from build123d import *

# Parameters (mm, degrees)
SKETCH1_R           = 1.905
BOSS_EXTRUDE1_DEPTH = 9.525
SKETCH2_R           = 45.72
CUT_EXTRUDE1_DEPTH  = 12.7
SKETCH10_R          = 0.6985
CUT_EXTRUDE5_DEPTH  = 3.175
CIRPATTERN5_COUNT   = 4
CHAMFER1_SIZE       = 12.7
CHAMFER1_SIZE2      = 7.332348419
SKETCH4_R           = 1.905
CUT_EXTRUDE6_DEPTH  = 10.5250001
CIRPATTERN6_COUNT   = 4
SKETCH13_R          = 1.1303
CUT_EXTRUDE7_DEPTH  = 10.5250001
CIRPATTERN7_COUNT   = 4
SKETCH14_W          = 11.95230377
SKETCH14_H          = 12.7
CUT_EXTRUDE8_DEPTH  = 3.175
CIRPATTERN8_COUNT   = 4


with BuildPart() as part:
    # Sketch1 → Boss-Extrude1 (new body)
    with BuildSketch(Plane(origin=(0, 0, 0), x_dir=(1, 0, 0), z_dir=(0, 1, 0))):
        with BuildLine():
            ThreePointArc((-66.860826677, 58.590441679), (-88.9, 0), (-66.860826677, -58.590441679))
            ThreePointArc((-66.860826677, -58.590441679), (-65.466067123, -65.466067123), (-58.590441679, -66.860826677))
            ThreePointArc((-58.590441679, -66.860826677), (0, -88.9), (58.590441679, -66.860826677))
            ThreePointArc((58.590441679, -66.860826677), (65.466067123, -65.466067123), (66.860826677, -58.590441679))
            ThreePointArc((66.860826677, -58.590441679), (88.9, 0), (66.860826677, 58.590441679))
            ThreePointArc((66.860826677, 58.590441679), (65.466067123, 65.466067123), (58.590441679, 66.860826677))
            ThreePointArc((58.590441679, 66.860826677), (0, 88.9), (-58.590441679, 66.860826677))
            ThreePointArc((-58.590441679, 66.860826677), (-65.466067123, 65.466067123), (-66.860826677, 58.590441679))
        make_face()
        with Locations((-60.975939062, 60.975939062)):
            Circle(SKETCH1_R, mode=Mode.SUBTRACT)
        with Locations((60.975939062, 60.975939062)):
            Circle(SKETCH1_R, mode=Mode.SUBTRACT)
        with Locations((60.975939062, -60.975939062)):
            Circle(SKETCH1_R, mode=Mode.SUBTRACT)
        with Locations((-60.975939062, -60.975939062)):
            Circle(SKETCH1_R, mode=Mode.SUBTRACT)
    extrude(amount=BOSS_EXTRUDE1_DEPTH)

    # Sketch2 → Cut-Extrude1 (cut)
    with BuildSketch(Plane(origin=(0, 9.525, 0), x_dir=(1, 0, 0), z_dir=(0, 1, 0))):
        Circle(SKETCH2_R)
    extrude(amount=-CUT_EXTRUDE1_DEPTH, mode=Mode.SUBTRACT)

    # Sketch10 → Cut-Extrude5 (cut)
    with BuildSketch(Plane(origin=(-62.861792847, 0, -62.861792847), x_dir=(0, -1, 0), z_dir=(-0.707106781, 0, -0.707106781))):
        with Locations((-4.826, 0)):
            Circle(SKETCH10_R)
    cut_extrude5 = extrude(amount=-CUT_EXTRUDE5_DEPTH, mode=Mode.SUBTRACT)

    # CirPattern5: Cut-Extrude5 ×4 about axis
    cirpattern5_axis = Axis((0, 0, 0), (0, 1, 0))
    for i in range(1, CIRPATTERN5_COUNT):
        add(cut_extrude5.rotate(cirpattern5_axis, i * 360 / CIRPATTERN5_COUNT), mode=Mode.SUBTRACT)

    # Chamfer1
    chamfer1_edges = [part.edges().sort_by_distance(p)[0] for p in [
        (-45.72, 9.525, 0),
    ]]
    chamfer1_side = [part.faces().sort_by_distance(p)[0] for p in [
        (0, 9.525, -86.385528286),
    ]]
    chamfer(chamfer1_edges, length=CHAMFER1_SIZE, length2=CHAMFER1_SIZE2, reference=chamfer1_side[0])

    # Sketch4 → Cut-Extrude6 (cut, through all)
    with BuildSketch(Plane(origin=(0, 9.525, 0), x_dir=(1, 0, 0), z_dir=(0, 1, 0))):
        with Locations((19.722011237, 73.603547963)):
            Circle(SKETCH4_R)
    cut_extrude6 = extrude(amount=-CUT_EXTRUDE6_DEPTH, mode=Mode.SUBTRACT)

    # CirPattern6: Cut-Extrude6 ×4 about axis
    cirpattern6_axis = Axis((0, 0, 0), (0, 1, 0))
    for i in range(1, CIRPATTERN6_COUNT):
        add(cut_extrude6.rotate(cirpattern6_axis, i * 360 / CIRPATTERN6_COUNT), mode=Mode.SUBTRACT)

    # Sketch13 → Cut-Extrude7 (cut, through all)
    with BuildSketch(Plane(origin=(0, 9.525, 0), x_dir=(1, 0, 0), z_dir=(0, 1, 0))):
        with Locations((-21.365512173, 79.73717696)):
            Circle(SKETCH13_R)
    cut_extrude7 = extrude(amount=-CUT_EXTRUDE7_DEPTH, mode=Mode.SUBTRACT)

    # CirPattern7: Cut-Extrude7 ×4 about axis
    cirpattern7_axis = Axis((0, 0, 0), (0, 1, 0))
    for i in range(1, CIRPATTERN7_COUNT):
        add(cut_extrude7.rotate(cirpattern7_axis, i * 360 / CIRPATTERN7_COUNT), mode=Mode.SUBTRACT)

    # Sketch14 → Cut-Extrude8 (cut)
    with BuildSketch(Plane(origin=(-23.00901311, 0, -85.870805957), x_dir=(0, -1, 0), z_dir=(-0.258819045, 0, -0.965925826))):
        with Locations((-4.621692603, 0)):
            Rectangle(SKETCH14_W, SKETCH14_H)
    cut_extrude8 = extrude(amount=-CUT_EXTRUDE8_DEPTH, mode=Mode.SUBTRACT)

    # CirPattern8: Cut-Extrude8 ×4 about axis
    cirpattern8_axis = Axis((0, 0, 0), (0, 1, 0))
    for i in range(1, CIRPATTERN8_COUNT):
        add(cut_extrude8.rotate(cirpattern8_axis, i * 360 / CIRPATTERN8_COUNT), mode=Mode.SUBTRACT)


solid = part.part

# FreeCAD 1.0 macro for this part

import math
import FreeCAD as App
import Part
import Sketcher

V = App.Vector
Q = App.Units.Quantity


def edges_at(feature, points):
    """Names of the edges that pass closest to the given points."""
    edges = feature.Shape.Edges
    near = lambda p: min(range(len(edges)), key=lambda i: edges[i].distToShape(Part.Vertex(*p))[0])
    return sorted({f"Edge{near(p) + 1}" for p in points})

doc = App.newDocument("Part")
body = doc.addObject("PartDesign::Body", "Body")

# Sketch on XZ plane
sketch1 = body.newObject("Sketcher::SketchObject", "Sketch")
sketch1.AttachmentSupport = (doc.getObject("XZ_Plane"), [""])
sketch1.MapMode = "FlatFace"
sketch1.addGeometry(Part.ArcOfCircle(Part.Circle(V(0, 0, 0), V(0, 0, 1), 88.9), math.radians(139), math.radians(221)), False)
sketch1.addGeometry(Part.ArcOfCircle(Part.Circle(V(-61, 61, 0), V(0, 0, 1), 6.3), math.radians(68), math.radians(202)), False)
sketch1.addGeometry(Part.ArcOfCircle(Part.Circle(V(0, 0, 0), V(0, 0, 1), 88.9), math.radians(49), math.radians(131)), False)
sketch1.addGeometry(Part.ArcOfCircle(Part.Circle(V(61, 61, 0), V(0, 0, 1), 6.3), math.radians(-22), math.radians(112)), False)
sketch1.addGeometry(Part.ArcOfCircle(Part.Circle(V(0, 0, 0), V(0, 0, 1), 88.9), math.radians(-41), math.radians(41)), False)
sketch1.addGeometry(Part.ArcOfCircle(Part.Circle(V(61, -61, 0), V(0, 0, 1), 6.3), math.radians(-112), math.radians(22)), False)
sketch1.addGeometry(Part.ArcOfCircle(Part.Circle(V(0, 0, 0), V(0, 0, 1), 88.9), math.radians(-131), math.radians(-49)), False)
sketch1.addGeometry(Part.ArcOfCircle(Part.Circle(V(-61, -61, 0), V(0, 0, 1), 6.3), math.radians(158), math.radians(292)), False)
sketch1.addGeometry(Part.Circle(V(-61, 61, 0), V(0, 0, 1), 1.9), False)
sketch1.addGeometry(Part.Circle(V(61, 61, 0), V(0, 0, 1), 1.9), False)
sketch1.addGeometry(Part.Circle(V(-61, -61, 0), V(0, 0, 1), 1.9), False)
sketch1.addGeometry(Part.Circle(V(61, -61, 0), V(0, 0, 1), 1.9), False)
sketch1.addConstraint(Sketcher.Constraint("Coincident", 0, 1, 1, 2))
sketch1.addConstraint(Sketcher.Constraint("Coincident", 1, 1, 2, 2))
sketch1.addConstraint(Sketcher.Constraint("Coincident", 2, 1, 3, 2))
sketch1.addConstraint(Sketcher.Constraint("Coincident", 3, 1, 4, 2))
sketch1.addConstraint(Sketcher.Constraint("Coincident", 4, 1, 5, 2))
sketch1.addConstraint(Sketcher.Constraint("Coincident", 5, 1, 6, 2))
sketch1.addConstraint(Sketcher.Constraint("Coincident", 6, 1, 7, 2))
sketch1.addConstraint(Sketcher.Constraint("Coincident", 7, 1, 0, 2))
sketch1.addConstraint(Sketcher.Constraint("Coincident", 0, 3, -1, 1))
sketch1.addConstraint(Sketcher.Constraint("Coincident", 2, 3, -1, 1))
sketch1.addConstraint(Sketcher.Constraint("Coincident", 4, 3, -1, 1))
sketch1.addConstraint(Sketcher.Constraint("Coincident", 6, 3, -1, 1))
sketch1.addConstraint(Sketcher.Constraint("Coincident", 8, 3, 1, 3))
sketch1.addConstraint(Sketcher.Constraint("Coincident", 9, 3, 3, 3))
sketch1.addConstraint(Sketcher.Constraint("Coincident", 10, 3, 7, 3))
sketch1.addConstraint(Sketcher.Constraint("Coincident", 11, 3, 5, 3))
sketch1.addConstraint(Sketcher.Constraint("Equal", 0, 2))
sketch1.addConstraint(Sketcher.Constraint("Equal", 1, 3))
sketch1.addConstraint(Sketcher.Constraint("Equal", 2, 4))
sketch1.addConstraint(Sketcher.Constraint("Equal", 3, 5))
sketch1.addConstraint(Sketcher.Constraint("Equal", 4, 6))
sketch1.addConstraint(Sketcher.Constraint("Equal", 5, 7))
sketch1.addConstraint(Sketcher.Constraint("Equal", 8, 9))
sketch1.addConstraint(Sketcher.Constraint("Equal", 9, 10))
sketch1.addConstraint(Sketcher.Constraint("Equal", 10, 11))
sketch1.addConstraint(Sketcher.Constraint("Symmetric", 1, 3, 5, 3, -1, 1))
sketch1.addConstraint(Sketcher.Constraint("Symmetric", 3, 3, 7, 3, -1, 1))
sketch1.addConstraint(Sketcher.Constraint("Symmetric", 1, 3, 3, 3, -2))
sketch1.addConstraint(Sketcher.Constraint("Radius", 0, Q("3.5 in")))
sketch1.addConstraint(Sketcher.Constraint("Diameter", 8, Q("0.15 in")))
sketch1.addConstraint(Sketcher.Constraint("Radius", 1, Q("0.25 in")))
sketch1.addConstraint(Sketcher.Constraint("DistanceX", 1, 3, -1, 1, Q("60.975939 mm")))
sketch1.addConstraint(Sketcher.Constraint("DistanceY", -1, 1, 1, 3, Q("60.975939 mm")))
pad1 = body.newObject("PartDesign::Pad", "Pad")
pad1.Profile = sketch1
pad1.Length = Q("0.375 in")
pad1.Reversed = True

# Sketch on XZ plane
sketch2 = body.newObject("Sketcher::SketchObject", "Sketch001")
sketch2.AttachmentSupport = (doc.getObject("XZ_Plane"), [""])
sketch2.MapMode = "FlatFace"
sketch2.AttachmentOffset = App.Placement(V(0, 0, -0.375 * 25.4), App.Rotation())
sketch2.addGeometry(Part.Circle(V(0, 0, 0), V(0, 0, 1), 46), False)
sketch2.addConstraint(Sketcher.Constraint("Coincident", 0, 3, -1, 1))
sketch2.addConstraint(Sketcher.Constraint("Diameter", 0, Q("3.6 in")))
pocket1 = body.newObject("PartDesign::Pocket", "Pocket")
pocket1.Profile = sketch2
pocket1.Length = Q("0.5 in")
pocket1.Reversed = True

# Sketch on an angled plane
sketch3 = body.newObject("Sketcher::SketchObject", "Sketch002")
sketch3.Placement = App.Placement(V(-62.861793, 0, -62.861793), App.Rotation(V(0, -1, 0), V(-0.707106781, 0, 0.707106781), V(-0.707106781, 0, -0.707106781), "ZXY"))
sketch3.addGeometry(Part.Circle(V(-4.8, 0, 0), V(0, 0, 1), 0.7), False)
sketch3.addConstraint(Sketcher.Constraint("PointOnObject", 0, 3, -1))
sketch3.addConstraint(Sketcher.Constraint("Diameter", 0, Q("0.055 in")))
sketch3.addConstraint(Sketcher.Constraint("DistanceX", 0, 3, -1, 1, Q("0.19 in")))
pocket2 = body.newObject("PartDesign::Pocket", "Pocket001")
pocket2.Profile = sketch3
pocket2.Length = Q("0.125 in")
doc.recompute()

polarpattern = body.newObject("PartDesign::PolarPattern", "PolarPattern")
polarpattern.Originals = [pocket2]
polarpattern.Axis = (doc.getObject("Y_Axis"), [""])
polarpattern.Angle = 360
polarpattern.Occurrences = 4
body.Tip = polarpattern
doc.recompute()

chamfer = body.newObject("PartDesign::Chamfer", "Chamfer")
chamfer.Base = (polarpattern, edges_at(polarpattern, [(-45.72, 9.525, 0)]))
chamfer.ChamferType = "Two distances"
chamfer.Size = Q("0.5 in")
chamfer.Size2 = 7.332348

# Sketch on XZ plane
sketch4 = body.newObject("Sketcher::SketchObject", "Sketch003")
sketch4.AttachmentSupport = (doc.getObject("XZ_Plane"), [""])
sketch4.MapMode = "FlatFace"
sketch4.AttachmentOffset = App.Placement(V(0, 0, -0.375 * 25.4), App.Rotation())
sketch4.addGeometry(Part.Circle(V(19.7, -73.6, 0), V(0, 0, 1), 1.9), False)
sketch4.addConstraint(Sketcher.Constraint("Diameter", 0, Q("0.15 in")))
sketch4.addConstraint(Sketcher.Constraint("DistanceX", -1, 1, 0, 3, Q("19.722011 mm")))
sketch4.addConstraint(Sketcher.Constraint("DistanceY", 0, 3, -1, 1, Q("73.603548 mm")))
pocket3 = body.newObject("PartDesign::Pocket", "Pocket002")
pocket3.Profile = sketch4
pocket3.Type = "ThroughAll"
pocket3.Reversed = True
doc.recompute()

polarpattern2 = body.newObject("PartDesign::PolarPattern", "PolarPattern001")
polarpattern2.Originals = [pocket3]
polarpattern2.Axis = (doc.getObject("Y_Axis"), [""])
polarpattern2.Angle = 360
polarpattern2.Occurrences = 4
body.Tip = polarpattern2

# Sketch on XZ plane
sketch5 = body.newObject("Sketcher::SketchObject", "Sketch004")
sketch5.AttachmentSupport = (doc.getObject("XZ_Plane"), [""])
sketch5.MapMode = "FlatFace"
sketch5.AttachmentOffset = App.Placement(V(0, 0, -0.375 * 25.4), App.Rotation())
sketch5.addGeometry(Part.Circle(V(-21.4, -79.7, 0), V(0, 0, 1), 1.1), False)
sketch5.addConstraint(Sketcher.Constraint("Diameter", 0, Q("0.089 in")))
sketch5.addConstraint(Sketcher.Constraint("DistanceX", 0, 3, -1, 1, Q("21.365512 mm")))
sketch5.addConstraint(Sketcher.Constraint("DistanceY", 0, 3, -1, 1, Q("79.737177 mm")))
pocket4 = body.newObject("PartDesign::Pocket", "Pocket003")
pocket4.Profile = sketch5
pocket4.Type = "ThroughAll"
pocket4.Reversed = True
doc.recompute()

polarpattern3 = body.newObject("PartDesign::PolarPattern", "PolarPattern002")
polarpattern3.Originals = [pocket4]
polarpattern3.Axis = (doc.getObject("Y_Axis"), [""])
polarpattern3.Angle = 360
polarpattern3.Occurrences = 4
body.Tip = polarpattern3

# Sketch on an angled plane
sketch6 = body.newObject("Sketcher::SketchObject", "Sketch005")
sketch6.Placement = App.Placement(V(-23.009013, 0, -85.870806), App.Rotation(V(0, -1, 0), V(-0.965925826, 0, 0.258819045), V(-0.258819045, 0, -0.965925826), "ZXY"))
sketch6.addGeometry(Part.LineSegment(V(-11, 6, 0), V(-11, -6, 0)), False)
sketch6.addGeometry(Part.LineSegment(V(-11, -6, 0), V(1, -6, 0)), False)
sketch6.addGeometry(Part.LineSegment(V(1, -6, 0), V(1, 6, 0)), False)
sketch6.addGeometry(Part.LineSegment(V(1, 6, 0), V(-11, 6, 0)), False)
sketch6.addConstraint(Sketcher.Constraint("Coincident", 0, 2, 1, 1))
sketch6.addConstraint(Sketcher.Constraint("Coincident", 1, 2, 2, 1))
sketch6.addConstraint(Sketcher.Constraint("Coincident", 2, 2, 3, 1))
sketch6.addConstraint(Sketcher.Constraint("Coincident", 3, 2, 0, 1))
sketch6.addConstraint(Sketcher.Constraint("Vertical", 0))
sketch6.addConstraint(Sketcher.Constraint("Horizontal", 1))
sketch6.addConstraint(Sketcher.Constraint("Vertical", 2))
sketch6.addConstraint(Sketcher.Constraint("Horizontal", 3))
sketch6.addConstraint(Sketcher.Constraint("DistanceY", 0, 2, 0, 1, Q("0.5 in")))
sketch6.addConstraint(Sketcher.Constraint("DistanceY", 0, 2, -1, 1, Q("0.25 in")))
sketch6.addConstraint(Sketcher.Constraint("DistanceX", 1, 1, 1, 2, Q("11.952304 mm")))
sketch6.addConstraint(Sketcher.Constraint("DistanceX", -1, 1, 1, 2, Q("1.354459 mm")))
pocket5 = body.newObject("PartDesign::Pocket", "Pocket004")
pocket5.Profile = sketch6
pocket5.Length = Q("0.125 in")
doc.recompute()

polarpattern4 = body.newObject("PartDesign::PolarPattern", "PolarPattern003")
polarpattern4.Originals = [pocket5]
polarpattern4.Axis = (doc.getObject("Y_Axis"), [""])
polarpattern4.Angle = 360
polarpattern4.Occurrences = 4
body.Tip = polarpattern4

doc.recompute()
